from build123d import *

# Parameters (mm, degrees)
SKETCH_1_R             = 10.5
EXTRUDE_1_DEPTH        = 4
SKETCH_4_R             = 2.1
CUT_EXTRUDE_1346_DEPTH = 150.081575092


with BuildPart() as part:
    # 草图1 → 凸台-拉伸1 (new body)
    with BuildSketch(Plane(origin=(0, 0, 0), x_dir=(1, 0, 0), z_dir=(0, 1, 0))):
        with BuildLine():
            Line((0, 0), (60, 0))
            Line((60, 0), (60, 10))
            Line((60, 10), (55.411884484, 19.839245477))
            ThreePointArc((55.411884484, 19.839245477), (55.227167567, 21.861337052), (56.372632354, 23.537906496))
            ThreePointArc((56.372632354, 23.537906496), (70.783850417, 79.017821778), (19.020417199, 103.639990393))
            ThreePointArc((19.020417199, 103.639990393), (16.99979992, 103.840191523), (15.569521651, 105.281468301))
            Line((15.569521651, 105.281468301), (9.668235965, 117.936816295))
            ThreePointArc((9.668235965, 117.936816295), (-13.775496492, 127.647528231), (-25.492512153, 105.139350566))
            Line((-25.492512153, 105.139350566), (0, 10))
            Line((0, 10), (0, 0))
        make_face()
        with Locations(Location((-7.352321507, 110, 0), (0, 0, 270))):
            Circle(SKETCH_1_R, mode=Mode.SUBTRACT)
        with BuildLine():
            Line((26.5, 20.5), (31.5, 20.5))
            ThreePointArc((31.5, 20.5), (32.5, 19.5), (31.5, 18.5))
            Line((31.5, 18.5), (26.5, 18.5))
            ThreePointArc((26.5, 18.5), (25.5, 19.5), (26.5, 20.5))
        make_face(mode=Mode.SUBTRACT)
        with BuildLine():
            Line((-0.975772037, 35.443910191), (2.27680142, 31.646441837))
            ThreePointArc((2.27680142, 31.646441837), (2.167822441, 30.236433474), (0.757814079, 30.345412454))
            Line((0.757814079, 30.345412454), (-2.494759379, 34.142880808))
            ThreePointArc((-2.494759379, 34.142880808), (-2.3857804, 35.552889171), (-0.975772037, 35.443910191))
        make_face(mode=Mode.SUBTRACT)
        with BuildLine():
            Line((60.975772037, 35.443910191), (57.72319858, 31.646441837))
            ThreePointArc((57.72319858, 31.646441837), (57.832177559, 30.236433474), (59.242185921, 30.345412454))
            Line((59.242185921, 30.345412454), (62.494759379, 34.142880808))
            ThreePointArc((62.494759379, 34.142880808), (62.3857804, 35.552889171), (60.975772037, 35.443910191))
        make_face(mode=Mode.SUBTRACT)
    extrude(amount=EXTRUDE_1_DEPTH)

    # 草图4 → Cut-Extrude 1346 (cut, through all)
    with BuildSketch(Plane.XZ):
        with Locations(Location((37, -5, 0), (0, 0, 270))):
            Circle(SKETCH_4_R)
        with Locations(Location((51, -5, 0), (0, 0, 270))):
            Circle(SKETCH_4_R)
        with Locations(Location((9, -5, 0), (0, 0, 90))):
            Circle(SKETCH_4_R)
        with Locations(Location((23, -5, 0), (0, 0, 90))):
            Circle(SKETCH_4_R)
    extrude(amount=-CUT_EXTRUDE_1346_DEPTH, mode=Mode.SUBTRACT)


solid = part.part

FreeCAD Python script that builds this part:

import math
import FreeCAD as App
import Part
import Sketcher
Q = App.Units.Quantity

doc = App.newDocument("Part")
body = doc.addObject("PartDesign::Body", "Body")

# Sketch on XZ plane
sketch1 = body.newObject("Sketcher::SketchObject", "Sketch")
sketch1.AttachmentSupport = (doc.getObject("XZ_Plane"), [""])
sketch1.MapMode = "FlatFace"
sketch1.addGeometry([
    Part.LineSegment(App.Vector(0, 0, 0), App.Vector(60, 0, 0)),  # 0
    Part.LineSegment(App.Vector(60, 0, 0), App.Vector(60, -10, 0)),  # 1
    Part.LineSegment(App.Vector(60, -10, 0), App.Vector(55.4, -19.8, 0)),  # 2
    Part.ArcOfCircle(Part.Circle(App.Vector(58.1, -21.1, 0), App.Vector(0, 0, 1), 3), math.radians(155), math.radians(234)),  # 3
    Part.ArcOfCircle(Part.Circle(App.Vector(30, -60, 0), App.Vector(0, 0, 1), 45), math.radians(-104), math.radians(54)),  # 4
    Part.ArcOfCircle(Part.Circle(App.Vector(18.3, -106.5, 0), App.Vector(0, 0, 1), 3), math.radians(76), math.radians(155)),  # 5
    Part.LineSegment(App.Vector(15.6, -105.3, 0), App.Vector(9.7, -117.9, 0)),  # 6
    Part.ArcOfCircle(Part.Circle(App.Vector(-7.4, -110, 0), App.Vector(0, 0, 1), 18.8), math.radians(165), math.radians(335)),  # 7
    Part.LineSegment(App.Vector(-25.5, -105.1, 0), App.Vector(0, -10, 0)),  # 8
    Part.LineSegment(App.Vector(0, -10, 0), App.Vector(0, 0, 0)),  # 9
    Part.ArcOfCircle(Part.Circle(App.Vector(-1.7, -34.8, 0), App.Vector(0, 0, 1), 1), math.radians(139), math.radians(319)),  # 10
    Part.LineSegment(App.Vector(-1, -35.4, 0), App.Vector(2.3, -31.6, 0)),  # 11
    Part.ArcOfCircle(Part.Circle(App.Vector(1.5, -31, 0), App.Vector(0, 0, 1), 1), math.radians(-41), math.radians(139)),  # 12
    Part.LineSegment(App.Vector(0.8, -30.3, 0), App.Vector(-2.5, -34.1, 0)),  # 13
    Part.ArcOfCircle(Part.Circle(App.Vector(26.5, -19.5, 0), App.Vector(0, 0, 1), 1), math.radians(90), math.radians(270)),  # 14
    Part.LineSegment(App.Vector(26.5, -20.5, 0), App.Vector(31.5, -20.5, 0)),  # 15
    Part.ArcOfCircle(Part.Circle(App.Vector(31.5, -19.5, 0), App.Vector(0, 0, 1), 1), math.radians(-90), math.radians(90)),  # 16
    Part.LineSegment(App.Vector(31.5, -18.5, 0), App.Vector(26.5, -18.5, 0)),  # 17
    Part.LineSegment(App.Vector(57.7, -31.6, 0), App.Vector(61, -35.4, 0)),  # 18
    Part.ArcOfCircle(Part.Circle(App.Vector(61.7, -34.8, 0), App.Vector(0, 0, 1), 1), math.radians(-139), math.radians(41)),  # 19
    Part.LineSegment(App.Vector(62.5, -34.1, 0), App.Vector(59.2, -30.3, 0)),  # 20
    Part.ArcOfCircle(Part.Circle(App.Vector(58.5, -31, 0), App.Vector(0, 0, 1), 1), math.radians(41), math.radians(221)),  # 21
    Part.Circle(App.Vector(-7.4, -110, 0), App.Vector(0, 0, 1), 10.5),  # 22
], False)
sketch1.addConstraint([
    Sketcher.Constraint("Coincident", 0, 2, 1, 1),
    Sketcher.Constraint("Coincident", 1, 2, 2, 1),
    Sketcher.Constraint("Tangent", 2, 2, 3, 1),
    Sketcher.Constraint("Tangent", 3, 2, 4, 2),
    Sketcher.Constraint("Tangent", 4, 1, 5, 1),
    Sketcher.Constraint("Tangent", 5, 2, 6, 1),
    Sketcher.Constraint("Tangent", 6, 2, 7, 2),
    Sketcher.Constraint("Tangent", 7, 1, 8, 1),
    Sketcher.Constraint("Coincident", 8, 2, 9, 1),
    Sketcher.Constraint("Coincident", 9, 2, 0, 1),
    Sketcher.Constraint("Tangent", 10, 2, 11, 1),
    Sketcher.Constraint("Tangent", 11, 2, 12, 1),
    Sketcher.Constraint("Tangent", 12, 2, 13, 1),
    Sketcher.Constraint("Tangent", 13, 2, 10, 1),
    Sketcher.Constraint("Tangent", 14, 2, 15, 1),
    Sketcher.Constraint("Tangent", 15, 2, 16, 1),
    Sketcher.Constraint("Tangent", 16, 2, 17, 1),
    Sketcher.Constraint("Tangent", 17, 2, 14, 1),
    Sketcher.Constraint("Tangent", 18, 2, 19, 1),
    Sketcher.Constraint("Tangent", 19, 2, 20, 1),
    Sketcher.Constraint("Tangent", 20, 2, 21, 1),
    Sketcher.Constraint("Tangent", 21, 2, 18, 1),
    Sketcher.Constraint("Horizontal", 0),
    Sketcher.Constraint("Vertical", 1),
    Sketcher.Constraint("Vertical", 9),
    Sketcher.Constraint("Horizontal", 15),
    Sketcher.Constraint("Horizontal", 17),
    Sketcher.Constraint("Coincident", 9, 2, -1, 1),
    Sketcher.Constraint("Coincident", 22, 3, 7, 3),
    Sketcher.Constraint("Equal", 3, 5),
    Sketcher.Constraint("Equal", 10, 12),
    Sketcher.Constraint("Equal", 12, 14),
    Sketcher.Constraint("Equal", 16, 19),
    Sketcher.Constraint("Equal", 19, 21),
    Sketcher.Constraint("Parallel", 2, 6),
    Sketcher.Constraint("Horizontal", 10, 3, 19, 3),
    Sketcher.Constraint("Horizontal", 12, 3, 21, 3),
    Sketcher.Constraint("Horizontal", 1, 2, 8, 2),
    Sketcher.Constraint("Horizontal", 10, 2, 18, 2),
    Sketcher.Constraint("Diameter", 22, 21.0),
    Sketcher.Constraint("Radius", 3, 3.0),
    Sketcher.Constraint("Radius", 4, 45.0),
    Sketcher.Constraint("Radius", 10, 1.0),
    Sketcher.Constraint("DistanceX", 0, 1, 0, 2, 60.0),
    Sketcher.Constraint("DistanceX", 15, 1, 15, 2, 5.0),
    Sketcher.Constraint("DistanceY", 1, 2, 1, 1, 10.0),
    Sketcher.Constraint("Angle", 2, Q("-115 deg")),
    Sketcher.Constraint("Angle", 8, Q("75 deg")),
    Sketcher.Constraint("Distance", 11, 5.0),
    Sketcher.Constraint("DistanceX", -1, 1, 4, 3, 30.0),
    Sketcher.Constraint("DistanceY", 4, 3, -1, 1, 60.0),
    Sketcher.Constraint("DistanceY", 7, 3, -1, 1, 110.0),
    Sketcher.Constraint("DistanceX", -1, 1, 14, 3, 26.5),
    Sketcher.Constraint("DistanceY", 14, 3, -1, 1, 19.5),
    Sketcher.Constraint("Radius", 7, 18.780107),
    Sketcher.Constraint("DistanceX", -1, 1, 11, 2, 2.276801),
    Sketcher.Constraint("DistanceX", -1, 1, 21, 2, 57.723199),
    Sketcher.Constraint("DistanceX", 12, 3, 3, 3, 56.6135),
    Sketcher.Constraint("DistanceY", 10, 2, -1, 1, 35.44391),
])
pad1 = body.newObject("PartDesign::Pad", "Pad")
pad1.Profile = sketch1
pad1.Length = 4
pad1.Reversed = True

# Sketch on XZ plane
sketch2 = body.newObject("Sketcher::SketchObject", "Sketch001")
sketch2.AttachmentSupport = (doc.getObject("XZ_Plane"), [""])
sketch2.MapMode = "FlatFace"
sketch2.addGeometry([
    Part.Circle(App.Vector(37, -5, 0), App.Vector(0, 0, 1), 2.1),
    Part.Circle(App.Vector(51, -5, 0), App.Vector(0, 0, 1), 2.1),
    Part.Circle(App.Vector(9, -5, 0), App.Vector(0, 0, 1), 2.1),
    Part.Circle(App.Vector(23, -5, 0), App.Vector(0, 0, 1), 2.1),
], False)
sketch2.addConstraint([
    Sketcher.Constraint("Equal", 0, 1),
    Sketcher.Constraint("Equal", 1, 2),
    Sketcher.Constraint("Equal", 2, 3),
    Sketcher.Constraint("Horizontal", 0, 3, 1, 3),
    Sketcher.Constraint("Horizontal", 1, 3, 2, 3),
    Sketcher.Constraint("Horizontal", 2, 3, 3, 3),
    Sketcher.Constraint("Diameter", 0, 4.2),
    Sketcher.Constraint("DistanceX", -1, 1, 0, 3, 37.0),
    Sketcher.Constraint("DistanceY", 0, 3, -1, 1, 5.0),
    Sketcher.Constraint("DistanceX", -1, 1, 1, 3, 51.0),
    Sketcher.Constraint("DistanceX", -1, 1, 2, 3, 9.0),
    Sketcher.Constraint("DistanceX", -1, 1, 3, 3, 23.0),
])
pocket1 = body.newObject("PartDesign::Pocket", "Pocket")
pocket1.Profile = sketch2
pocket1.Type = "ThroughAll"

doc.recompute()
